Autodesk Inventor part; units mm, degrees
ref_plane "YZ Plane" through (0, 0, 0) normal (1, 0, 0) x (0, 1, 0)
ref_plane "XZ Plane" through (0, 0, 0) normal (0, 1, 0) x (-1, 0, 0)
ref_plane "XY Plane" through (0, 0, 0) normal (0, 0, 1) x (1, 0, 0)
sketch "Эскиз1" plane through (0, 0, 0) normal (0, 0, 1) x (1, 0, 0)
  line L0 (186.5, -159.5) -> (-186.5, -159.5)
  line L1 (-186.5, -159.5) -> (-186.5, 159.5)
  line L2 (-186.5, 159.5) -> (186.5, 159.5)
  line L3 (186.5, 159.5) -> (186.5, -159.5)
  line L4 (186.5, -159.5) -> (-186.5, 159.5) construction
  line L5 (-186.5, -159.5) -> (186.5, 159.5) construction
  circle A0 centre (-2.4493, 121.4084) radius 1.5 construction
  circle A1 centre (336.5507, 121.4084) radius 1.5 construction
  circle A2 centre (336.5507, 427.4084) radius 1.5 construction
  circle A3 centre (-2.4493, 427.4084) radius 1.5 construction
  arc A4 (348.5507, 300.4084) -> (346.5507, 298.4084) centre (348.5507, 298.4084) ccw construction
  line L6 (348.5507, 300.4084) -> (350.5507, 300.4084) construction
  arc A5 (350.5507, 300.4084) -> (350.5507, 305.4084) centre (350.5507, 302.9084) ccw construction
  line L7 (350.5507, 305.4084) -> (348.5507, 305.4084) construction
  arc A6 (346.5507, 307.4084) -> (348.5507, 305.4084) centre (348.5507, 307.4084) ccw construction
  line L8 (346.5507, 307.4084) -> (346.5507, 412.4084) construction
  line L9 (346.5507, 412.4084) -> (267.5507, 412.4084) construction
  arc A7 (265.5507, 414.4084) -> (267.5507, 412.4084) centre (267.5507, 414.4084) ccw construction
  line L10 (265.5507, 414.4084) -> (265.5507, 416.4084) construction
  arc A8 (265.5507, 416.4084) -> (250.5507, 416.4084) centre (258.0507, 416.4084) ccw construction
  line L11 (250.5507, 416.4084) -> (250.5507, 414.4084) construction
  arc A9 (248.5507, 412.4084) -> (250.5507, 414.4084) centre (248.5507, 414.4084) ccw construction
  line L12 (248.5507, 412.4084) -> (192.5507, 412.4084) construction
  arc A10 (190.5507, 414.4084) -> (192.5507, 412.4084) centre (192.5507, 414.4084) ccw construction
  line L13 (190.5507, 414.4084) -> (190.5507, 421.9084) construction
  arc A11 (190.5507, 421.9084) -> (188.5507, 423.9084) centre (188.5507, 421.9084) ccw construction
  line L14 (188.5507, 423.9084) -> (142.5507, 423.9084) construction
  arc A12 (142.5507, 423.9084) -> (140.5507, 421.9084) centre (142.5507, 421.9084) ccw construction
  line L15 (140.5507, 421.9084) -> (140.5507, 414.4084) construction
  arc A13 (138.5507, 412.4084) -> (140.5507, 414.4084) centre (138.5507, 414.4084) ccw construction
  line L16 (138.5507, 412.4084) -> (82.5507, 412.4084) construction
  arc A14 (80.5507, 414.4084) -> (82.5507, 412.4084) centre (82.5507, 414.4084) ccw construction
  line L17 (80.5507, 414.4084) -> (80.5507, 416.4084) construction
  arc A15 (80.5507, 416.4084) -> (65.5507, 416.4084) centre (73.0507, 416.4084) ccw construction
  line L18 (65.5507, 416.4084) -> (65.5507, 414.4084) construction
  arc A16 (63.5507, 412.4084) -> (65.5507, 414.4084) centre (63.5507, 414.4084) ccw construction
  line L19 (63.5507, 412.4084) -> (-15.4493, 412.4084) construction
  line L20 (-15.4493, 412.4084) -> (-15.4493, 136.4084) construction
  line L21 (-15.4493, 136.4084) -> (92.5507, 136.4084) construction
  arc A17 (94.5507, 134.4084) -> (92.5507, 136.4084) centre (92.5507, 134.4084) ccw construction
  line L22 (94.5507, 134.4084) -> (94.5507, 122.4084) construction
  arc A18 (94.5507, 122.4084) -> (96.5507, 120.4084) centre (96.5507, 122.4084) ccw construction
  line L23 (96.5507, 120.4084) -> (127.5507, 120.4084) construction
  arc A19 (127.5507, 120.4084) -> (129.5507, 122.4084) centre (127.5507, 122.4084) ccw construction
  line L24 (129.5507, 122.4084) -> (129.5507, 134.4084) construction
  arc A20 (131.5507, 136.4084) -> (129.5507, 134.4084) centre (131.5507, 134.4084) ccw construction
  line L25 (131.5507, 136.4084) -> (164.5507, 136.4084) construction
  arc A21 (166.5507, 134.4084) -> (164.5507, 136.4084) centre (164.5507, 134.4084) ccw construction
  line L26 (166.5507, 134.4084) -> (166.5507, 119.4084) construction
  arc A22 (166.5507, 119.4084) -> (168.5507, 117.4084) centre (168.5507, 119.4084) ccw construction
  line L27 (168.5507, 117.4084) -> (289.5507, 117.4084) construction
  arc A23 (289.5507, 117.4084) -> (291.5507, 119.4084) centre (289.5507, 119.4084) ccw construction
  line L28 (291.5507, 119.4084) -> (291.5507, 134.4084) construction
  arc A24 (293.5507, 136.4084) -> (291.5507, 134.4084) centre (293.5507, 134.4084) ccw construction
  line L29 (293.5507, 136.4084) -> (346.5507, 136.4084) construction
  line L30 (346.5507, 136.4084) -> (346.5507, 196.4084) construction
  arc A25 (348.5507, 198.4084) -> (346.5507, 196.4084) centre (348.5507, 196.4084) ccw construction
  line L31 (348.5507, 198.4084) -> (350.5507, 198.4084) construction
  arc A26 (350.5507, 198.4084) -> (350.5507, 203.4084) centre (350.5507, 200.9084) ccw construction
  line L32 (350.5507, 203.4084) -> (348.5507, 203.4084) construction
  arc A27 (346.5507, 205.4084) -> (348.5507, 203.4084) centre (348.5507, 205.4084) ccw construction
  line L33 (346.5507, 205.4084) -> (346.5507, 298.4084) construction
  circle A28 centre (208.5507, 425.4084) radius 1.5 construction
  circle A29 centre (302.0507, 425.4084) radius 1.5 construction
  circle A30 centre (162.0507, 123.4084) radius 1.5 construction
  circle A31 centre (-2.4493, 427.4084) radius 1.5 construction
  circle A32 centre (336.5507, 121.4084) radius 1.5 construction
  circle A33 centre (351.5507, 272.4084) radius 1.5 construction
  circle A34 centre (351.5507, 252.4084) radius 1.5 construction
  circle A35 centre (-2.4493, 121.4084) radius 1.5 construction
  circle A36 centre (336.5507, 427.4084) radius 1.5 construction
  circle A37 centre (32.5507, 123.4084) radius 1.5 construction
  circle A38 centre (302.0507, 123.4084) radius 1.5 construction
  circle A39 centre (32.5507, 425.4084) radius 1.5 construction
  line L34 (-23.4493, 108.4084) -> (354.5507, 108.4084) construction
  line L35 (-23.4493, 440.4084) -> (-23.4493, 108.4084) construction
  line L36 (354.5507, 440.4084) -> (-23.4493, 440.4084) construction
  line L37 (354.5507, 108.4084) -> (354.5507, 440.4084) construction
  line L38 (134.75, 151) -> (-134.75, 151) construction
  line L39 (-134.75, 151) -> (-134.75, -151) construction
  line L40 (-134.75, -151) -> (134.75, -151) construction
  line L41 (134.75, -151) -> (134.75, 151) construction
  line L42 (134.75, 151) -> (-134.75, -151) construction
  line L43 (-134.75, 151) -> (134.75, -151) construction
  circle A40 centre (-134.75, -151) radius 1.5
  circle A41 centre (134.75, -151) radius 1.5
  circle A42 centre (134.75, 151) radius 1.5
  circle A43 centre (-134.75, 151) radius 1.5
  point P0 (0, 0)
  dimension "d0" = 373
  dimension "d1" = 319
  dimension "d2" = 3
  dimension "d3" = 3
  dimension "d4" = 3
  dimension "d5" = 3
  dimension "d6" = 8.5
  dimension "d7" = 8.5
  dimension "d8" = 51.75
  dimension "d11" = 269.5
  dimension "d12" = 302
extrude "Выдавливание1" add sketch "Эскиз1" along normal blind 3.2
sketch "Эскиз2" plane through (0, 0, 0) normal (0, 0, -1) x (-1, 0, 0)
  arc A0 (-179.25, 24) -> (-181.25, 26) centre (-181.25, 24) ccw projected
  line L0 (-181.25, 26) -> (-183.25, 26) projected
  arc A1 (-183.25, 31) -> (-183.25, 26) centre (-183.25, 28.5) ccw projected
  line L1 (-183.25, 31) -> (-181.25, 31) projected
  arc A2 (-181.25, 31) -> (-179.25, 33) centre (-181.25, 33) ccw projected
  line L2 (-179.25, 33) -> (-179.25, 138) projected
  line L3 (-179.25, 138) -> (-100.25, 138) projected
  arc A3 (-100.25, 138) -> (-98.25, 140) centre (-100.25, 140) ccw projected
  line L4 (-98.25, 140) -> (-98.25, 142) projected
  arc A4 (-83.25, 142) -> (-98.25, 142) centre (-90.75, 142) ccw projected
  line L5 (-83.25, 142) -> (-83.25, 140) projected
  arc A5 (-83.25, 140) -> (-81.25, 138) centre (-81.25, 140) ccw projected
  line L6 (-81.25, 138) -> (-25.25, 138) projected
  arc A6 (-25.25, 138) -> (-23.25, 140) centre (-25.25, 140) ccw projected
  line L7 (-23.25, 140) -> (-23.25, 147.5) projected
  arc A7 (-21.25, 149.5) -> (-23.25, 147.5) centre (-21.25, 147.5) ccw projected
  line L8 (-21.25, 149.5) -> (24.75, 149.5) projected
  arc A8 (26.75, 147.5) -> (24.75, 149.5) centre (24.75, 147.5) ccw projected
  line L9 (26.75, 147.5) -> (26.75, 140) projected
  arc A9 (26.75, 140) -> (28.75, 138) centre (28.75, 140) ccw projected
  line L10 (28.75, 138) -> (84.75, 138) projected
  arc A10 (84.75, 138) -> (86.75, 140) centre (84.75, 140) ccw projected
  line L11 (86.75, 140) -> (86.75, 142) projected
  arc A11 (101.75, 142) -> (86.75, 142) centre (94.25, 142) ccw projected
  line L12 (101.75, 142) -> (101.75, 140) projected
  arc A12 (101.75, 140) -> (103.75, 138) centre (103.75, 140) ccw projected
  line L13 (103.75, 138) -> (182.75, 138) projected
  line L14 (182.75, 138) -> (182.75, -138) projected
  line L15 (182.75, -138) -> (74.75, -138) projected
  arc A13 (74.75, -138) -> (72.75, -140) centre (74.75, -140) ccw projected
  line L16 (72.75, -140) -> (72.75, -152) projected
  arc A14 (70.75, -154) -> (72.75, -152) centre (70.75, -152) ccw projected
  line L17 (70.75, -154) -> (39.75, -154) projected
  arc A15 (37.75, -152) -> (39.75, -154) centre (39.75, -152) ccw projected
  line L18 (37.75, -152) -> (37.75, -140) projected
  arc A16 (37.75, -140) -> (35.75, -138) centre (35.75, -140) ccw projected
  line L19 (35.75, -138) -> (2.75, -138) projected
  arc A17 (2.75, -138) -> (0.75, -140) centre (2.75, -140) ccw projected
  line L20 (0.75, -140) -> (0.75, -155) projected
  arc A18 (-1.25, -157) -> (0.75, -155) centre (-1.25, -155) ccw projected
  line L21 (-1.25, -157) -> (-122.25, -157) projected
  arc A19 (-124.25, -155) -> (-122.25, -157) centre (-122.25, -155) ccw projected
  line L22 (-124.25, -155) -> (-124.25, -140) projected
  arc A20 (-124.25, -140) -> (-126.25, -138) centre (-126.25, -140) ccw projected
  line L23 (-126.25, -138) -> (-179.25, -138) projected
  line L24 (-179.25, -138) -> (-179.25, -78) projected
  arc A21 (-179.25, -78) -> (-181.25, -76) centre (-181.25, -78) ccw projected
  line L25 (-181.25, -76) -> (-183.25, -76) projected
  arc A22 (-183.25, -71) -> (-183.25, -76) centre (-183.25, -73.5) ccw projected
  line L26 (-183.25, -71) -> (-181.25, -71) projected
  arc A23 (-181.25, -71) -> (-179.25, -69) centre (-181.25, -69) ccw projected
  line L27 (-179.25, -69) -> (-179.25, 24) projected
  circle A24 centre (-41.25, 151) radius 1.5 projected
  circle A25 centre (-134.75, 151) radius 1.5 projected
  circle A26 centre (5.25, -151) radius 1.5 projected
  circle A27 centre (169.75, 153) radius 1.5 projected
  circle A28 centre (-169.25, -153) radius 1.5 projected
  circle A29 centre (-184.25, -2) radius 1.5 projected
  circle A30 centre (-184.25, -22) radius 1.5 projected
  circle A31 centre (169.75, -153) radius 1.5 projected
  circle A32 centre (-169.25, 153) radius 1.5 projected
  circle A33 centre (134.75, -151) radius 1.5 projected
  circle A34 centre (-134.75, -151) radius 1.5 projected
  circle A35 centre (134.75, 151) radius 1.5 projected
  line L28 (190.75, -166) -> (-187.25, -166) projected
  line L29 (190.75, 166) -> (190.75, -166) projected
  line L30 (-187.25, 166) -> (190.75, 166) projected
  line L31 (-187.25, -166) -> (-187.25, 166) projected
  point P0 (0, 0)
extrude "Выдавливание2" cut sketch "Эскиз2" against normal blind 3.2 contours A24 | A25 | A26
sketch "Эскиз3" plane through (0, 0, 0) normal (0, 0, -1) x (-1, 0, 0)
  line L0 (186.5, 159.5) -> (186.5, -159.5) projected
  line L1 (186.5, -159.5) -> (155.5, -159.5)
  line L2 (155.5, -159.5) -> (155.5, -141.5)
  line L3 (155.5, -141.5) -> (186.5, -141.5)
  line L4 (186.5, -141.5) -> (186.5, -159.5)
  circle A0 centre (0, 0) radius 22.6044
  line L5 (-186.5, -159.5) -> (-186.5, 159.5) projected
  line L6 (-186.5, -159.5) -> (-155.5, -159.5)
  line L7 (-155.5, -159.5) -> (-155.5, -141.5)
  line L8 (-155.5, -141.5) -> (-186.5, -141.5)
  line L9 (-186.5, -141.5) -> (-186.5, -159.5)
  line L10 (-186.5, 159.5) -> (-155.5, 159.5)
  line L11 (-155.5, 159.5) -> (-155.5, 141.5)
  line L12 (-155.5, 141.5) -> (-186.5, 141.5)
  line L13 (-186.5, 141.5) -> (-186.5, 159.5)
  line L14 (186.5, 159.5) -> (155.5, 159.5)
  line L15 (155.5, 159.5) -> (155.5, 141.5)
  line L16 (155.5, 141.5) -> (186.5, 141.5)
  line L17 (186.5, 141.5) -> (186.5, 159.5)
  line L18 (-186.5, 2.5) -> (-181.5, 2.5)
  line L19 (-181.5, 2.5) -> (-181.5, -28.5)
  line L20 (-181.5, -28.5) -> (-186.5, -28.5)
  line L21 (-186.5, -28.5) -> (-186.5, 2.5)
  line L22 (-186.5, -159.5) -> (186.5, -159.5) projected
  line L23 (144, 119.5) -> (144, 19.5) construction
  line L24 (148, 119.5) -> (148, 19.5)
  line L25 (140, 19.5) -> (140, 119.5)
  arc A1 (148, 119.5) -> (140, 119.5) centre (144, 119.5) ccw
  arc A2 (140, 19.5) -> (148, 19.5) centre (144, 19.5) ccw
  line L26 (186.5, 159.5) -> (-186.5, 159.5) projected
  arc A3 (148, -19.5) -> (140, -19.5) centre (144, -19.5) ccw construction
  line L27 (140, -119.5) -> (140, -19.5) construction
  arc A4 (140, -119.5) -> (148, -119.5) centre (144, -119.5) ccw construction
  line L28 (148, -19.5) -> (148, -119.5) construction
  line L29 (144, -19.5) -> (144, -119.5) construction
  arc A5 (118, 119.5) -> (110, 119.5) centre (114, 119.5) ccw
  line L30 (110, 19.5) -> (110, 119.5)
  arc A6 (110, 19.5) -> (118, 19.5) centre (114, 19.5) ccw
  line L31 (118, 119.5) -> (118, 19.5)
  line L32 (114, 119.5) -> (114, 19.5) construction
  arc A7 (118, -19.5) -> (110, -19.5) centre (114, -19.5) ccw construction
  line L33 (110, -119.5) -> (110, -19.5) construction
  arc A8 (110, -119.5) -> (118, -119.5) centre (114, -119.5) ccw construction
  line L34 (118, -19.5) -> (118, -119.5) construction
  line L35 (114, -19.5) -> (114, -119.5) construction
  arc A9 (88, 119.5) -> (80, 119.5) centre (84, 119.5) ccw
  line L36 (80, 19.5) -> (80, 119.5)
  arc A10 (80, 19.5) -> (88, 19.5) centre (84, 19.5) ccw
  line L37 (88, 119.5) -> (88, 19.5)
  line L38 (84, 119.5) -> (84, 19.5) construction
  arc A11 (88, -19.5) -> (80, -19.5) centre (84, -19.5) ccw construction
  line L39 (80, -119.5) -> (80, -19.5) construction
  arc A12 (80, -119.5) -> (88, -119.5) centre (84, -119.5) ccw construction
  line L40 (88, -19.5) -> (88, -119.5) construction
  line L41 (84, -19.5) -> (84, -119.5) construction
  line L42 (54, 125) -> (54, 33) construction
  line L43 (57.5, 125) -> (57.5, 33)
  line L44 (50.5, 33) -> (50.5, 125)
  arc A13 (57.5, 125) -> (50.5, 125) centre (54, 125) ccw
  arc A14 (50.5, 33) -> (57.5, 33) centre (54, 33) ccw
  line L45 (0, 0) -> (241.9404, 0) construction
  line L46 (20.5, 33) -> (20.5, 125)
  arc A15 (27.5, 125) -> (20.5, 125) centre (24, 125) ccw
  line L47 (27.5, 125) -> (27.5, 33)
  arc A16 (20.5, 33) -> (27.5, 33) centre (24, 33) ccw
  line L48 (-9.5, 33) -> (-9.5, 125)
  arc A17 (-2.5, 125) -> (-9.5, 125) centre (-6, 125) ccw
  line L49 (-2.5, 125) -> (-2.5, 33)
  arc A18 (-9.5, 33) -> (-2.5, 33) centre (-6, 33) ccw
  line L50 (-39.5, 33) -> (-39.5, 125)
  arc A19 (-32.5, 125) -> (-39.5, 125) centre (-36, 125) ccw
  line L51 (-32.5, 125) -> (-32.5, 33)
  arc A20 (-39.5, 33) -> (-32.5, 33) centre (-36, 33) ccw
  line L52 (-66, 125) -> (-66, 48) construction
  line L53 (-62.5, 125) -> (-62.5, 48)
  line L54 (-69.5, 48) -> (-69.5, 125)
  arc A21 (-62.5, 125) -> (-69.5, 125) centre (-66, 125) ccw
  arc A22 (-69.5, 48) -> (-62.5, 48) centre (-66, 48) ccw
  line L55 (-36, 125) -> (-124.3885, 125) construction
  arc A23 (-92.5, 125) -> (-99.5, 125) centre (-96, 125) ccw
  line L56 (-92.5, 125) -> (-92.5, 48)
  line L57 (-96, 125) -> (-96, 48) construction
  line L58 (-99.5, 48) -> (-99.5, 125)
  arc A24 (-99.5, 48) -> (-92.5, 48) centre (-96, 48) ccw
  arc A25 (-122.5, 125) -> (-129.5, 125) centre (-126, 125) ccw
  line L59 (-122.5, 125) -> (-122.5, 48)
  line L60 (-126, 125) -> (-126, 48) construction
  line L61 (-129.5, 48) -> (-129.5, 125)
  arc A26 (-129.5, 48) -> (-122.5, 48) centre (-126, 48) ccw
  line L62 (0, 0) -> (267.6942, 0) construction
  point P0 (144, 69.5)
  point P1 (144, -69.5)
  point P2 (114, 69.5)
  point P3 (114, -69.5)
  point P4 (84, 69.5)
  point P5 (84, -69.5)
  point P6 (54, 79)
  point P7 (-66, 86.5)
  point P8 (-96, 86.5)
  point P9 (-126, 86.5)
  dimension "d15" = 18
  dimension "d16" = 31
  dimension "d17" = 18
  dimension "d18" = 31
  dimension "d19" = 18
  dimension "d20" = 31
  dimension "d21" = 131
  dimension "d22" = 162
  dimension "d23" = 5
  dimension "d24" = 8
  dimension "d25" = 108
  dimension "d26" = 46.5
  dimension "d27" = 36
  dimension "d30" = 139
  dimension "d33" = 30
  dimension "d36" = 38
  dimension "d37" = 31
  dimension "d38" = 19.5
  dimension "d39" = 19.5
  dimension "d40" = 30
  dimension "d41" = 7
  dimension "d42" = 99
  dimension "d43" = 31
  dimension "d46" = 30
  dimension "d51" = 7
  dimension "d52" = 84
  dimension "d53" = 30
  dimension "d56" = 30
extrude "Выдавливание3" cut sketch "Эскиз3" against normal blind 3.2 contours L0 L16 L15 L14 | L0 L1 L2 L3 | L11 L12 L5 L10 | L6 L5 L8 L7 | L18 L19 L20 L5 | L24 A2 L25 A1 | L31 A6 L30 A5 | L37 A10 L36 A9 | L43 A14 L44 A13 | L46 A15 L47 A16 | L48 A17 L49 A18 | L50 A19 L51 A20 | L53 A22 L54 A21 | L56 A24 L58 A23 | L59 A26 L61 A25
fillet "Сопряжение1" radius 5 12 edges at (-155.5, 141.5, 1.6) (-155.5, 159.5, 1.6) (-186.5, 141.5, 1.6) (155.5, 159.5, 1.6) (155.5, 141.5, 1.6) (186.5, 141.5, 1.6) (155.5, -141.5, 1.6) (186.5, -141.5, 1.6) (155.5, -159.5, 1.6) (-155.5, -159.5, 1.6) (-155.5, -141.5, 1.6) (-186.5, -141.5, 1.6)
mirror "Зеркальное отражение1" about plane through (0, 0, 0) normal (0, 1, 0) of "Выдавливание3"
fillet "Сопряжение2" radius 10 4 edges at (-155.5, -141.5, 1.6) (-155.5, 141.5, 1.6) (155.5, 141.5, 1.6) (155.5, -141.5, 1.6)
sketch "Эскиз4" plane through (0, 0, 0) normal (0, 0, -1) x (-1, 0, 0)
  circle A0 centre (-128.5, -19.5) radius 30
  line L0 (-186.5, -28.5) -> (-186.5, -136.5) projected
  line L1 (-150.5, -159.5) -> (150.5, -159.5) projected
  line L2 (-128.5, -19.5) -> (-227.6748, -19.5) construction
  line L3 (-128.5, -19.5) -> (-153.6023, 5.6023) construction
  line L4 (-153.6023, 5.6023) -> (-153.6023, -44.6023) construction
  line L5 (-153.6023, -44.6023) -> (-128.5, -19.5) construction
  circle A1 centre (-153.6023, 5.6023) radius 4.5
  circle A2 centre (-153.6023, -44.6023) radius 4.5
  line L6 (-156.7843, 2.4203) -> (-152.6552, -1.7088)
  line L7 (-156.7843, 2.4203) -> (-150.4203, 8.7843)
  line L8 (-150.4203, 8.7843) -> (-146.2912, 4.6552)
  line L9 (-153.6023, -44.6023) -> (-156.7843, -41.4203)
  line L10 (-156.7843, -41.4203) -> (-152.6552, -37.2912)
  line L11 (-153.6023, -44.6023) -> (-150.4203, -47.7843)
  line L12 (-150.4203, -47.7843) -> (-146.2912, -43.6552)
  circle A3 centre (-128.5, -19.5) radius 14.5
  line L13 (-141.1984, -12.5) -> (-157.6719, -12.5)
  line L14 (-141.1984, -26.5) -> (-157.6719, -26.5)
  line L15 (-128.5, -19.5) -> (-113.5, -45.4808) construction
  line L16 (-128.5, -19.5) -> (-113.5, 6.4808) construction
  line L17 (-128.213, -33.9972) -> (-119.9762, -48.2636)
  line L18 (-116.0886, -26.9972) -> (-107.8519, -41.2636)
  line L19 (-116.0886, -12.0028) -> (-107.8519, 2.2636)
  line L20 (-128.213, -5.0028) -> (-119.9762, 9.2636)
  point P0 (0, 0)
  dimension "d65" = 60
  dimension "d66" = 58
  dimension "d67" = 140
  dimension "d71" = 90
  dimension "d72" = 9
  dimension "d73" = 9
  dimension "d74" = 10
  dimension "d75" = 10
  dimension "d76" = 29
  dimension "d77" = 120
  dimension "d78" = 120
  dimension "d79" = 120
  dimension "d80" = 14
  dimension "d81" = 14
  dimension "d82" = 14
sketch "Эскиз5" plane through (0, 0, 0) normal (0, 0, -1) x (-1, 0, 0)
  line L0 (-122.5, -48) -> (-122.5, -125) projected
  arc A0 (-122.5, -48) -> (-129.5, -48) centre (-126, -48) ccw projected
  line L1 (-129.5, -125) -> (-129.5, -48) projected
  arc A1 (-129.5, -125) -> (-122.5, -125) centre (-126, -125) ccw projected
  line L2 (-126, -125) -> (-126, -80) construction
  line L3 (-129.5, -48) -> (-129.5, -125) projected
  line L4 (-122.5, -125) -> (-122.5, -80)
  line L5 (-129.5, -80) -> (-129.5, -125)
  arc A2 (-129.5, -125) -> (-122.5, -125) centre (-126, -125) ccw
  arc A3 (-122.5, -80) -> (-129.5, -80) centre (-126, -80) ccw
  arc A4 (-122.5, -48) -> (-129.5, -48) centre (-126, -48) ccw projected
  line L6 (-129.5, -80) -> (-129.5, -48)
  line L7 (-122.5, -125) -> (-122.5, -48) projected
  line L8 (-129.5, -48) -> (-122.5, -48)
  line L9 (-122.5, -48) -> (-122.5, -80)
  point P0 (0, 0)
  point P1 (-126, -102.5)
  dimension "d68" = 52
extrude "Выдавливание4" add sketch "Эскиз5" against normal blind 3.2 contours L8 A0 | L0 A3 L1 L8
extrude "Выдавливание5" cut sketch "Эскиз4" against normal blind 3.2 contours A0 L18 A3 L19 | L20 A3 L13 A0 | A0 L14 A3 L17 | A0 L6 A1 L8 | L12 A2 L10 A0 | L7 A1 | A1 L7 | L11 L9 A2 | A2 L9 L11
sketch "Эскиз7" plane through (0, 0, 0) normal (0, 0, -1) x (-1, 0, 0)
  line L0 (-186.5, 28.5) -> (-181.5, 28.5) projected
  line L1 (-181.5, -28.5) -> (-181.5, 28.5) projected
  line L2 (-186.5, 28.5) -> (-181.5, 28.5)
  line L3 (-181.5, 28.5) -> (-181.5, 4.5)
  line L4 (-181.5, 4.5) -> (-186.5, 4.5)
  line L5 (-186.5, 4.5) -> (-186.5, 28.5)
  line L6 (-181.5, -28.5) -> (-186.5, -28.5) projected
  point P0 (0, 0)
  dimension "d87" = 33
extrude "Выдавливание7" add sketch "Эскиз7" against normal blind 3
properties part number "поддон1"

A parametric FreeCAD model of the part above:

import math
import FreeCAD as App
import Part
import Sketcher

V = App.Vector
Q = App.Units.Quantity


def edges_at(feature, points):
    """Names of the edges that pass closest to the given points."""
    edges = feature.Shape.Edges
    near = lambda p: min(range(len(edges)), key=lambda i: edges[i].distToShape(Part.Vertex(*p))[0])
    return sorted({f"Edge{near(p) + 1}" for p in points})

doc = App.newDocument("Part")
body = doc.addObject("PartDesign::Body", "Body")

# Sketch on XY plane
sketch1 = body.newObject("Sketcher::SketchObject", "Sketch")
sketch1.AttachmentSupport = (doc.getObject("XY_Plane"), [""])
sketch1.MapMode = "FlatFace"
sketch1.addGeometry([
    Part.LineSegment(V(-186.5, -159.5, 0), V(186.5, -159.5, 0)),  # 0
    Part.LineSegment(V(186.5, -159.5, 0), V(186.5, 159.5, 0)),  # 1
    Part.LineSegment(V(186.5, 159.5, 0), V(-186.5, 159.5, 0)),  # 2
    Part.LineSegment(V(-186.5, 159.5, 0), V(-186.5, -159.5, 0)),  # 3
    Part.Circle(V(-134.75, -151, 0), V(0, 0, 1), 1.5),  # 4
    Part.Circle(V(134.75, -151, 0), V(0, 0, 1), 1.5),  # 5
    Part.Circle(V(-134.75, 151, 0), V(0, 0, 1), 1.5),  # 6
    Part.Circle(V(134.75, 151, 0), V(0, 0, 1), 1.5),  # 7
], False)
sketch1.addConstraint([
    Sketcher.Constraint("Coincident", 0, 2, 1, 1),
    Sketcher.Constraint("Coincident", 1, 2, 2, 1),
    Sketcher.Constraint("Coincident", 2, 2, 3, 1),
    Sketcher.Constraint("Coincident", 3, 2, 0, 1),
    Sketcher.Constraint("Horizontal", 0),
    Sketcher.Constraint("Vertical", 1),
    Sketcher.Constraint("Horizontal", 2),
    Sketcher.Constraint("Vertical", 3),
    Sketcher.Constraint("Equal", 4, 5),
    Sketcher.Constraint("Equal", 5, 6),
    Sketcher.Constraint("Equal", 6, 7),
    Sketcher.Constraint("Symmetric", 5, 3, 6, 3, -1, 1),
    Sketcher.Constraint("Symmetric", 4, 3, 7, 3, -1, 1),
    Sketcher.Constraint("Symmetric", 0, 2, 2, 2, -1, 1),
    Sketcher.Constraint("Symmetric", 4, 3, 5, 3, -2),
    Sketcher.Constraint("Diameter", 4, Q("3 mm")),
    Sketcher.Constraint("DistanceX", 0, 1, 0, 2, Q("373 mm")),
    Sketcher.Constraint("DistanceY", 1, 1, 1, 2, Q("319 mm")),
    Sketcher.Constraint("DistanceY", 4, 3, 6, 3, Q("302 mm")),
    Sketcher.Constraint("DistanceX", 4, 3, 5, 3, Q("269.5 mm")),
])
pad1 = body.newObject("PartDesign::Pad", "Pad")
pad1.Profile = sketch1
pad1.Length = 3.2

# Sketch on XY plane
sketch2 = body.newObject("Sketcher::SketchObject", "Sketch001")
sketch2.AttachmentSupport = (doc.getObject("XY_Plane"), [""])
sketch2.MapMode = "FlatFace"
sketch2.addGeometry([
    Part.Circle(V(41.25, 151, 0), V(0, 0, 1), 1.5),
    Part.Circle(V(134.75, 151, 0), V(0, 0, 1), 1.5),
    Part.Circle(V(-5.25, -151, 0), V(0, 0, 1), 1.5),
], False)
sketch2.addConstraint([
    Sketcher.Constraint("Equal", 0, 1),
    Sketcher.Constraint("Equal", 1, 2),
    Sketcher.Constraint("Horizontal", 0, 3, 1, 3),
    Sketcher.Constraint("Diameter", 0, Q("3 mm")),
    Sketcher.Constraint("DistanceY", -1, 1, 0, 3, Q("151 mm")),
    Sketcher.Constraint("DistanceY", 2, 3, -1, 1, Q("151 mm")),
    Sketcher.Constraint("DistanceX", 2, 3, 1, 3, Q("140 mm")),
    Sketcher.Constraint("DistanceX", 0, 3, 1, 3, Q("93.5 mm")),
    Sketcher.Constraint("DistanceX", -1, 1, 0, 3, Q("41.25 mm")),
])
pocket1 = body.newObject("PartDesign::Pocket", "Pocket")
pocket1.Profile = sketch2
pocket1.Length = 3.2
pocket1.Reversed = True

# Sketch on XY plane
sketch3 = body.newObject("Sketcher::SketchObject", "Sketch002")
sketch3.AttachmentSupport = (doc.getObject("XY_Plane"), [""])
sketch3.MapMode = "FlatFace"
sketch3.addGeometry([
    Part.LineSegment(V(-186.5, 141.5, 0), V(-186.5, 159.5, 0)),  # 0
    Part.LineSegment(V(-186.5, 159.5, 0), V(-155.5, 159.5, 0)),  # 1
    Part.LineSegment(V(-155.5, 159.5, 0), V(-155.5, 141.5, 0)),  # 2
    Part.LineSegment(V(-155.5, 141.5, 0), V(-186.5, 141.5, 0)),  # 3
    Part.LineSegment(V(-186.5, -159.5, 0), V(-186.5, -141.5, 0)),  # 4
    Part.LineSegment(V(-186.5, -141.5, 0), V(-155.5, -141.5, 0)),  # 5
    Part.LineSegment(V(-155.5, -141.5, 0), V(-155.5, -159.5, 0)),  # 6
    Part.LineSegment(V(-155.5, -159.5, 0), V(-186.5, -159.5, 0)),  # 7
    Part.LineSegment(V(155.5, 141.5, 0), V(155.5, 159.5, 0)),  # 8
    Part.LineSegment(V(155.5, 159.5, 0), V(186.5, 159.5, 0)),  # 9
    Part.LineSegment(V(186.5, 159.5, 0), V(186.5, 141.5, 0)),  # 10
    Part.LineSegment(V(186.5, 141.5, 0), V(155.5, 141.5, 0)),  # 11
    Part.LineSegment(V(186.5, -159.5, 0), V(155.5, -159.5, 0)),  # 12
    Part.LineSegment(V(155.5, -159.5, 0), V(155.5, -141.5, 0)),  # 13
    Part.LineSegment(V(155.5, -141.5, 0), V(186.5, -141.5, 0)),  # 14
    Part.LineSegment(V(186.5, -141.5, 0), V(186.5, -159.5, 0)),  # 15
    Part.LineSegment(V(181.5, 2.5, 0), V(186.5, 2.5, 0)),  # 16
    Part.LineSegment(V(186.5, 2.5, 0), V(186.5, -28.5, 0)),  # 17
    Part.LineSegment(V(186.5, -28.5, 0), V(181.5, -28.5, 0)),  # 18
    Part.LineSegment(V(181.5, -28.5, 0), V(181.5, 2.5, 0)),  # 19
    Part.LineSegment(V(-148, 19.5, 0), V(-148, 119.5, 0)),  # 20
    Part.ArcOfCircle(Part.Circle(V(-144, 119.5, 0), V(0, 0, 1), 4), math.radians(0), math.radians(180)),  # 21
    Part.LineSegment(V(-140, 119.5, 0), V(-140, 19.5, 0)),  # 22
    Part.ArcOfCircle(Part.Circle(V(-144, 19.5, 0), V(0, 0, 1), 4), math.radians(180), math.radians(360)),  # 23
    Part.LineSegment(V(-118, 19.5, 0), V(-118, 119.5, 0)),  # 24
    Part.ArcOfCircle(Part.Circle(V(-114, 119.5, 0), V(0, 0, 1), 4), math.radians(0), math.radians(180)),  # 25
    Part.LineSegment(V(-110, 119.5, 0), V(-110, 19.5, 0)),  # 26
    Part.ArcOfCircle(Part.Circle(V(-114, 19.5, 0), V(0, 0, 1), 4), math.radians(180), math.radians(360)),  # 27
    Part.LineSegment(V(-88, 19.5, 0), V(-88, 119.5, 0)),  # 28
    Part.ArcOfCircle(Part.Circle(V(-84, 119.5, 0), V(0, 0, 1), 4), math.radians(0), math.radians(180)),  # 29
    Part.LineSegment(V(-80, 119.5, 0), V(-80, 19.5, 0)),  # 30
    Part.ArcOfCircle(Part.Circle(V(-84, 19.5, 0), V(0, 0, 1), 4), math.radians(180), math.radians(360)),  # 31
    Part.LineSegment(V(-57.5, 33, 0), V(-57.5, 125, 0)),  # 32
    Part.ArcOfCircle(Part.Circle(V(-54, 125, 0), V(0, 0, 1), 3.5), math.radians(0), math.radians(180)),  # 33
    Part.LineSegment(V(-50.5, 125, 0), V(-50.5, 33, 0)),  # 34
    Part.ArcOfCircle(Part.Circle(V(-54, 33, 0), V(0, 0, 1), 3.5), math.radians(180), math.radians(360)),  # 35
    Part.LineSegment(V(-20.5, 125, 0), V(-20.5, 33, 0)),  # 36
    Part.ArcOfCircle(Part.Circle(V(-24, 33, 0), V(0, 0, 1), 3.5), math.radians(180), math.radians(360)),  # 37
    Part.LineSegment(V(-27.5, 33, 0), V(-27.5, 125, 0)),  # 38
    Part.ArcOfCircle(Part.Circle(V(-24, 125, 0), V(0, 0, 1), 3.5), math.radians(0), math.radians(180)),  # 39
    Part.LineSegment(V(9.5, 125, 0), V(9.5, 33, 0)),  # 40
    Part.ArcOfCircle(Part.Circle(V(6, 33, 0), V(0, 0, 1), 3.5), math.radians(180), math.radians(360)),  # 41
    Part.LineSegment(V(2.5, 33, 0), V(2.5, 125, 0)),  # 42
    Part.ArcOfCircle(Part.Circle(V(6, 125, 0), V(0, 0, 1), 3.5), math.radians(0), math.radians(180)),  # 43
    Part.LineSegment(V(39.5, 125, 0), V(39.5, 33, 0)),  # 44
    Part.ArcOfCircle(Part.Circle(V(36, 33, 0), V(0, 0, 1), 3.5), math.radians(180), math.radians(360)),  # 45
    Part.LineSegment(V(32.5, 33, 0), V(32.5, 125, 0)),  # 46
    Part.ArcOfCircle(Part.Circle(V(36, 125, 0), V(0, 0, 1), 3.5), math.radians(0), math.radians(180)),  # 47
    Part.LineSegment(V(62.5, 48, 0), V(62.5, 125, 0)),  # 48
    Part.ArcOfCircle(Part.Circle(V(66, 125, 0), V(0, 0, 1), 3.5), math.radians(0), math.radians(180)),  # 49
    Part.LineSegment(V(69.5, 125, 0), V(69.5, 48, 0)),  # 50
    Part.ArcOfCircle(Part.Circle(V(66, 48, 0), V(0, 0, 1), 3.5), math.radians(180), math.radians(360)),  # 51
    Part.LineSegment(V(92.5, 48, 0), V(92.5, 125, 0)),  # 52
    Part.ArcOfCircle(Part.Circle(V(96, 125, 0), V(0, 0, 1), 3.5), math.radians(0), math.radians(180)),  # 53
    Part.LineSegment(V(99.5, 125, 0), V(99.5, 48, 0)),  # 54
    Part.ArcOfCircle(Part.Circle(V(96, 48, 0), V(0, 0, 1), 3.5), math.radians(180), math.radians(360)),  # 55
    Part.LineSegment(V(122.5, 48, 0), V(122.5, 125, 0)),  # 56
    Part.ArcOfCircle(Part.Circle(V(126, 125, 0), V(0, 0, 1), 3.5), math.radians(0), math.radians(180)),  # 57
    Part.LineSegment(V(129.5, 125, 0), V(129.5, 48, 0)),  # 58
    Part.ArcOfCircle(Part.Circle(V(126, 48, 0), V(0, 0, 1), 3.5), math.radians(180), math.radians(360)),  # 59
], False)
sketch3.addConstraint([
    Sketcher.Constraint("Coincident", 0, 2, 1, 1),
    Sketcher.Constraint("Coincident", 1, 2, 2, 1),
    Sketcher.Constraint("Coincident", 2, 2, 3, 1),
    Sketcher.Constraint("Coincident", 3, 2, 0, 1),
    Sketcher.Constraint("Coincident", 4, 2, 5, 1),
    Sketcher.Constraint("Coincident", 5, 2, 6, 1),
    Sketcher.Constraint("Coincident", 6, 2, 7, 1),
    Sketcher.Constraint("Coincident", 7, 2, 4, 1),
    Sketcher.Constraint("Coincident", 8, 2, 9, 1),
    Sketcher.Constraint("Coincident", 9, 2, 10, 1),
    Sketcher.Constraint("Coincident", 10, 2, 11, 1),
    Sketcher.Constraint("Coincident", 11, 2, 8, 1),
    Sketcher.Constraint("Coincident", 12, 2, 13, 1),
    Sketcher.Constraint("Coincident", 13, 2, 14, 1),
    Sketcher.Constraint("Coincident", 14, 2, 15, 1),
    Sketcher.Constraint("Coincident", 15, 2, 12, 1),
    Sketcher.Constraint("Coincident", 16, 2, 17, 1),
    Sketcher.Constraint("Coincident", 17, 2, 18, 1),
    Sketcher.Constraint("Coincident", 18, 2, 19, 1),
    Sketcher.Constraint("Coincident", 19, 2, 16, 1),
    Sketcher.Constraint("Tangent", 20, 2, 21, 2),
    Sketcher.Constraint("Tangent", 21, 1, 22, 1),
    Sketcher.Constraint("Tangent", 22, 2, 23, 2),
    Sketcher.Constraint("Tangent", 23, 1, 20, 1),
    Sketcher.Constraint("Tangent", 24, 2, 25, 2),
    Sketcher.Constraint("Tangent", 25, 1, 26, 1),
    Sketcher.Constraint("Tangent", 26, 2, 27, 2),
    Sketcher.Constraint("Tangent", 27, 1, 24, 1),
    Sketcher.Constraint("Tangent", 28, 2, 29, 2),
    Sketcher.Constraint("Tangent", 29, 1, 30, 1),
    Sketcher.Constraint("Tangent", 30, 2, 31, 2),
    Sketcher.Constraint("Tangent", 31, 1, 28, 1),
    Sketcher.Constraint("Tangent", 32, 2, 33, 2),
    Sketcher.Constraint("Tangent", 33, 1, 34, 1),
    Sketcher.Constraint("Tangent", 34, 2, 35, 2),
    Sketcher.Constraint("Tangent", 35, 1, 32, 1),
    Sketcher.Constraint("Tangent", 36, 2, 37, 2),
    Sketcher.Constraint("Tangent", 37, 1, 38, 1),
    Sketcher.Constraint("Tangent", 38, 2, 39, 2),
    Sketcher.Constraint("Tangent", 39, 1, 36, 1),
    Sketcher.Constraint("Tangent", 40, 2, 41, 2),
    Sketcher.Constraint("Tangent", 41, 1, 42, 1),
    Sketcher.Constraint("Tangent", 42, 2, 43, 2),
    Sketcher.Constraint("Tangent", 43, 1, 40, 1),
    Sketcher.Constraint("Tangent", 44, 2, 45, 2),
    Sketcher.Constraint("Tangent", 45, 1, 46, 1),
    Sketcher.Constraint("Tangent", 46, 2, 47, 2),
    Sketcher.Constraint("Tangent", 47, 1, 44, 1),
    Sketcher.Constraint("Tangent", 48, 2, 49, 2),
    Sketcher.Constraint("Tangent", 49, 1, 50, 1),
    Sketcher.Constraint("Tangent", 50, 2, 51, 2),
    Sketcher.Constraint("Tangent", 51, 1, 48, 1),
    Sketcher.Constraint("Tangent", 52, 2, 53, 2),
    Sketcher.Constraint("Tangent", 53, 1, 54, 1),
    Sketcher.Constraint("Tangent", 54, 2, 55, 2),
    Sketcher.Constraint("Tangent", 55, 1, 52, 1),
    Sketcher.Constraint("Tangent", 56, 2, 57, 2),
    Sketcher.Constraint("Tangent", 57, 1, 58, 1),
    Sketcher.Constraint("Tangent", 58, 2, 59, 2),
    Sketcher.Constraint("Tangent", 59, 1, 56, 1),
    Sketcher.Constraint("Vertical", 0),
    Sketcher.Constraint("Horizontal", 1),
    Sketcher.Constraint("Vertical", 2),
    Sketcher.Constraint("Horizontal", 3),
    Sketcher.Constraint("Vertical", 4),
    Sketcher.Constraint("Horizontal", 5),
    Sketcher.Constraint("Vertical", 6),
    Sketcher.Constraint("Horizontal", 7),
    Sketcher.Constraint("Vertical", 8),
    Sketcher.Constraint("Horizontal", 9),
    Sketcher.Constraint("Vertical", 10),
    Sketcher.Constraint("Horizontal", 11),
    Sketcher.Constraint("Horizontal", 12),
    Sketcher.Constraint("Vertical", 13),
    Sketcher.Constraint("Horizontal", 14),
    Sketcher.Constraint("Vertical", 15),
    Sketcher.Constraint("Horizontal", 16),
    Sketcher.Constraint("Vertical", 17),
    Sketcher.Constraint("Horizontal", 18),
    Sketcher.Constraint("Vertical", 19),
    Sketcher.Constraint("Vertical", 20),
    Sketcher.Constraint("Vertical", 22),
    Sketcher.Constraint("Vertical", 24),
    Sketcher.Constraint("Vertical", 26),
    Sketcher.Constraint("Vertical", 28),
    Sketcher.Constraint("Vertical", 30),
    Sketcher.Constraint("Vertical", 32),
    Sketcher.Constraint("Vertical", 34),
    Sketcher.Constraint("Vertical", 36),
    Sketcher.Constraint("Vertical", 38),
    Sketcher.Constraint("Vertical", 40),
    Sketcher.Constraint("Vertical", 42),
    Sketcher.Constraint("Vertical", 44),
    Sketcher.Constraint("Vertical", 46),
    Sketcher.Constraint("Vertical", 48),
    Sketcher.Constraint("Vertical", 50),
    Sketcher.Constraint("Vertical", 52),
    Sketcher.Constraint("Vertical", 54),
    Sketcher.Constraint("Vertical", 56),
    Sketcher.Constraint("Vertical", 58),
    Sketcher.Constraint("Equal", 23, 25),
    Sketcher.Constraint("Equal", 27, 29),
    Sketcher.Constraint("Equal", 35, 37),
    Sketcher.Constraint("Equal", 39, 41),
    Sketcher.Constraint("Equal", 43, 45),
    Sketcher.Constraint("Equal", 47, 49),
    Sketcher.Constraint("Equal", 51, 53),
    Sketcher.Constraint("Equal", 55, 57),
    Sketcher.Constraint("Symmetric", 6, 2, 8, 2, -1, 1),
    Sketcher.Constraint("Symmetric", 4, 2, 10, 2, -1, 1),
    Sketcher.Constraint("Symmetric", 1, 2, 12, 2, -1, 1),
    Sketcher.Constraint("Symmetric", 3, 2, 14, 2, -1, 1),
    Sketcher.Constraint("Symmetric", 1, 2, 8, 2, -2),
    Sketcher.Constraint("Symmetric", 3, 2, 10, 2, -2),
    Sketcher.Constraint("Horizontal", 21, 3, 25, 3),
    Sketcher.Constraint("Horizontal", 23, 3, 27, 3),
    Sketcher.Constraint("Horizontal", 25, 3, 29, 3),
    Sketcher.Constraint("Horizontal", 27, 3, 31, 3),
    Sketcher.Constraint("Horizontal", 35, 3, 37, 3),
    Sketcher.Constraint("Horizontal", 33, 3, 39, 3),
    Sketcher.Constraint("Horizontal", 37, 3, 41, 3),
    Sketcher.Constraint("Horizontal", 39, 3, 43, 3),
    Sketcher.Constraint("Horizontal", 41, 3, 45, 3),
    Sketcher.Constraint("Horizontal", 43, 3, 47, 3),
    Sketcher.Constraint("Horizontal", 47, 3, 49, 3),
    Sketcher.Constraint("Horizontal", 49, 3, 53, 3),
    Sketcher.Constraint("Horizontal", 51, 3, 55, 3),
    Sketcher.Constraint("Horizontal", 53, 3, 57, 3),
    Sketcher.Constraint("Horizontal", 55, 3, 59, 3),
    Sketcher.Constraint("Vertical", 15, 2, 16, 2),
    Sketcher.Constraint("Equal", 14, 17),
    Sketcher.Constraint("Radius", 21, Q("4 mm")),
    Sketcher.Constraint("Radius", 33, Q("3.5 mm")),
    Sketcher.Constraint("DistanceX", 1, 1, 1, 2, Q("31 mm")),
    Sketcher.Constraint("DistanceX", 16, 1, 16, 2, Q("5 mm")),
    Sketcher.Constraint("DistanceY", 0, 1, 0, 2, Q("18 mm")),
    Sketcher.Constraint("DistanceX", 29, 3, -1, 1, Q("84 mm")),
    Sketcher.Constraint("DistanceX", -1, 1, 45, 3, Q("36 mm")),
    Sketcher.Constraint("DistanceY", -1, 1, 23, 3, Q("19.5 mm")),
    Sketcher.Constraint("DistanceY", 20, 1, 20, 2, Q("100 mm")),
    Sketcher.Constraint("DistanceY", 32, 1, 32, 2, Q("92 mm")),
    Sketcher.Constraint("DistanceY", 48, 1, 48, 2, Q("77 mm")),
    Sketcher.Constraint("DistanceX", 21, 3, -1, 1, Q("144 mm")),
    Sketcher.Constraint("DistanceX", 25, 3, -1, 1, Q("114 mm")),
    Sketcher.Constraint("DistanceX", 33, 3, -1, 1, Q("54 mm")),
    Sketcher.Constraint("DistanceY", -1, 1, 33, 3, Q("125 mm")),
    Sketcher.Constraint("DistanceX", 37, 3, -1, 1, Q("24 mm")),
    Sketcher.Constraint("DistanceX", -1, 1, 41, 3, Q("6 mm")),
    Sketcher.Constraint("DistanceX", -1, 1, 49, 3, Q("66 mm")),
    Sketcher.Constraint("DistanceX", -1, 1, 53, 3, Q("96 mm")),
    Sketcher.Constraint("DistanceX", -1, 1, 57, 3, Q("126 mm")),
    Sketcher.Constraint("DistanceX", 0, 2, -1, 1, Q("186.5 mm")),
    Sketcher.Constraint("DistanceY", -1, 1, 0, 2, Q("159.5 mm")),
    Sketcher.Constraint("DistanceY", -1, 1, 16, 2, Q("2.5 mm")),
])
pocket2 = body.newObject("PartDesign::Pocket", "Pocket001")
pocket2.Profile = sketch3
pocket2.Length = 3.2
pocket2.Reversed = True
doc.recompute()

fillet = body.newObject("PartDesign::Fillet", "Fillet")
fillet.Base = (pocket2, edges_at(pocket2, [
    (-155.5, 141.5, 1.6),
    (-155.5, 159.5, 1.6),
    (-186.5, 141.5, 1.6),
    (155.5, 159.5, 1.6),
    (155.5, 141.5, 1.6),
    (186.5, 141.5, 1.6),
    (155.5, -141.5, 1.6),
    (186.5, -141.5, 1.6),
    (155.5, -159.5, 1.6),
    (-155.5, -159.5, 1.6),
    (-155.5, -141.5, 1.6),
    (-186.5, -141.5, 1.6),
]))
fillet.Radius = 5
doc.recompute()

mirrored = body.newObject("PartDesign::Mirrored", "Mirrored")
mirrored.Originals = [pocket2]
mirrored.MirrorPlane = (doc.getObject("XZ_Plane"), [""])
body.Tip = mirrored
doc.recompute()

fillet2 = body.newObject("PartDesign::Fillet", "Fillet001")
fillet2.Base = (mirrored, edges_at(mirrored, [
    (-155.5, -141.5, 1.6),
    (-155.5, 141.5, 1.6),
    (155.5, 141.5, 1.6),
    (155.5, -141.5, 1.6),
]))
fillet2.Radius = 10

# Sketch on XY plane
sketch4 = body.newObject("Sketcher::SketchObject", "Sketch003")
sketch4.AttachmentSupport = (doc.getObject("XY_Plane"), [""])
sketch4.MapMode = "FlatFace"
sketch4.addGeometry([
    Part.ArcOfCircle(Part.Circle(V(126, -48, 0), V(0, 0, 1), 3.5), math.radians(0), math.radians(180)),
    Part.LineSegment(V(129.5, -48, 0), V(129.5, -80, 0)),
    Part.ArcOfCircle(Part.Circle(V(126, -80, 0), V(0, 0, 1), 3.5), math.radians(0), math.radians(180)),
    Part.LineSegment(V(122.5, -80, 0), V(122.5, -48, 0)),
], False)
sketch4.addConstraint([
    Sketcher.Constraint("Tangent", 0, 1, 1, 1),
    Sketcher.Constraint("Tangent", 1, 2, 2, 1),
    Sketcher.Constraint("Tangent", 2, 2, 3, 1),
    Sketcher.Constraint("Tangent", 3, 2, 0, 2),
    Sketcher.Constraint("Vertical", 1),
    Sketcher.Constraint("Vertical", 3),
    Sketcher.Constraint("Radius", 0, Q("3.5 mm")),
    Sketcher.Constraint("DistanceY", 1, 2, 1, 1, Q("32 mm")),
    Sketcher.Constraint("DistanceX", -1, 1, 0, 3, Q("126 mm")),
    Sketcher.Constraint("DistanceY", 0, 3, -1, 1, Q("48 mm")),
])
pad2 = body.newObject("PartDesign::Pad", "Pad001")
pad2.Profile = sketch4
pad2.Length = 3.2

# Sketch on XY plane
sketch5 = body.newObject("Sketcher::SketchObject", "Sketch004")
sketch5.AttachmentSupport = (doc.getObject("XY_Plane"), [""])
sketch5.MapMode = "FlatFace"
sketch5.addGeometry([
    Part.ArcOfCircle(Part.Circle(V(128.5, -19.5, 0), V(0, 0, 1), 30), math.radians(133.493371), math.radians(226.506629)),  # 0
    Part.LineSegment(V(107.8519, 2.2636, 0), V(116.0886, -12.0028, 0)),  # 1
    Part.ArcOfCircle(Part.Circle(V(128.5, -19.5, 0), V(0, 0, 1), 14.5), math.radians(148.865607), math.radians(211.134393)),  # 2
    Part.LineSegment(V(116.0886, -26.9972, 0), V(107.8519, -41.2636, 0)),  # 3
    Part.LineSegment(V(128.213, -5.0028, 0), V(119.9762, 9.2636, 0)),  # 4
    Part.ArcOfCircle(Part.Circle(V(128.5, -19.5, 0), V(0, 0, 1), 30), math.radians(53.626977), math.radians(106.506654)),  # 5
    Part.LineSegment(V(146.2912, 4.6552, 0), V(150.4203, 8.7843, 0)),  # 6
    Part.ArcOfCircle(Part.Circle(V(153.6023, 5.6023, 0), V(0, 0, 1), 4.5), math.radians(-45), math.radians(135)),  # 7
    Part.LineSegment(V(156.7843, 2.4203, 0), V(152.6552, -1.7088, 0)),  # 8
    Part.ArcOfCircle(Part.Circle(V(128.5, -19.5, 0), V(0, 0, 1), 30), math.radians(13.493401), math.radians(36.373023)),  # 9
    Part.LineSegment(V(157.6719, -12.5, 0), V(141.1984, -12.5, 0)),  # 10
    Part.ArcOfCircle(Part.Circle(V(128.5, -19.5, 0), V(0, 0, 1), 14.5), math.radians(28.865775), math.radians(91.134132)),  # 11
    Part.ArcOfCircle(Part.Circle(V(128.5, -19.5, 0), V(0, 0, 1), 30), math.radians(-106.506654), math.radians(-53.626977)),  # 12
    Part.LineSegment(V(119.9762, -48.2636, 0), V(128.213, -33.9972, 0)),  # 13
    Part.ArcOfCircle(Part.Circle(V(128.5, -19.5, 0), V(0, 0, 1), 14.5), math.radians(-91.134132), math.radians(-28.865775)),  # 14
    Part.LineSegment(V(141.1984, -26.5, 0), V(157.6719, -26.5, 0)),  # 15
    Part.ArcOfCircle(Part.Circle(V(128.5, -19.5, 0), V(0, 0, 1), 30), math.radians(-36.373023), math.radians(-13.493401)),  # 16
    Part.LineSegment(V(152.6552, -37.2912, 0), V(156.7843, -41.4203, 0)),  # 17
    Part.ArcOfCircle(Part.Circle(V(153.6023, -44.6023, 0), V(0, 0, 1), 4.5), math.radians(-135), math.radians(45)),  # 18
    Part.LineSegment(V(150.4203, -47.7843, 0), V(146.2912, -43.6552, 0)),  # 19
], False)
sketch5.addConstraint([
    Sketcher.Constraint("Coincident", 0, 1, 1, 1),
    Sketcher.Constraint("Coincident", 1, 2, 2, 1),
    Sketcher.Constraint("Coincident", 2, 2, 3, 1),
    Sketcher.Constraint("Coincident", 3, 2, 0, 2),
    Sketcher.Constraint("Coincident", 4, 2, 5, 2),
    Sketcher.Constraint("Coincident", 5, 1, 6, 1),
    Sketcher.Constraint("Tangent", 6, 2, 7, 2),
    Sketcher.Constraint("Tangent", 7, 1, 8, 1),
    Sketcher.Constraint("Coincident", 8, 2, 9, 2),
    Sketcher.Constraint("Coincident", 9, 1, 10, 1),
    Sketcher.Constraint("Coincident", 10, 2, 11, 1),
    Sketcher.Constraint("Coincident", 11, 2, 4, 1),
    Sketcher.Constraint("Coincident", 12, 1, 13, 1),
    Sketcher.Constraint("Coincident", 13, 2, 14, 1),
    Sketcher.Constraint("Coincident", 14, 2, 15, 1),
    Sketcher.Constraint("Coincident", 15, 2, 16, 2),
    Sketcher.Constraint("Coincident", 16, 1, 17, 1),
    Sketcher.Constraint("Tangent", 17, 2, 18, 2),
    Sketcher.Constraint("Tangent", 18, 1, 19, 1),
    Sketcher.Constraint("Coincident", 19, 2, 12, 2),
    Sketcher.Constraint("Horizontal", 10),
    Sketcher.Constraint("Horizontal", 15),
    Sketcher.Constraint("Coincident", 2, 3, 0, 3),
    Sketcher.Constraint("Coincident", 5, 3, 0, 3),
    Sketcher.Constraint("Coincident", 9, 3, 0, 3),
    Sketcher.Constraint("Coincident", 11, 3, 0, 3),
    Sketcher.Constraint("Coincident", 12, 3, 0, 3),
    Sketcher.Constraint("Coincident", 14, 3, 0, 3),
    Sketcher.Constraint("Coincident", 16, 3, 0, 3),
    Sketcher.Constraint("Equal", 0, 5),
    Sketcher.Constraint("Equal", 5, 9),
    Sketcher.Constraint("Equal", 2, 11),
    Sketcher.Constraint("Equal", 9, 12),
    Sketcher.Constraint("Equal", 11, 14),
    Sketcher.Constraint("Equal", 12, 16),
    Sketcher.Constraint("Equal", 7, 18),
    Sketcher.Constraint("Parallel", 1, 4),
    Sketcher.Constraint("Parallel", 6, 8),
    Sketcher.Constraint("Parallel", 3, 13),
    Sketcher.Constraint("Perpendicular", 8, 17),
    Sketcher.Constraint("Parallel", 17, 19),
    Sketcher.Constraint("Vertical", 7, 3, 18, 3),
    Sketcher.Constraint("Vertical", 1, 2, 2, 2),
    Sketcher.Constraint("Vertical", 0, 1, 3, 2),
    Sketcher.Constraint("Vertical", 4, 2, 12, 1),
    Sketcher.Constraint("Vertical", 10, 2, 14, 2),
    Sketcher.Constraint("Vertical", 8, 2, 16, 1),
    Sketcher.Constraint("Vertical", 7, 1, 17, 2),
    Sketcher.Constraint("Equal", 3, 4),
    Sketcher.Constraint("Equal", 6, 8),
    Sketcher.Constraint("Radius", 0, Q("30 mm")),
    Sketcher.Constraint("Radius", 2, Q("14.5 mm")),
    Sketcher.Constraint("Radius", 7, Q("4.5 mm")),
    Sketcher.Constraint("Angle", 1, Q("-60 deg")),
    Sketcher.Constraint("DistanceY", 14, 2, 10, 2, Q("14 mm")),
    Sketcher.Constraint("DistanceY", 0, 1, 4, 2, Q("7 mm")),
    Sketcher.Constraint("DistanceX", -1, 1, 0, 3, Q("128.5 mm")),
    Sketcher.Constraint("DistanceY", 0, 3, -1, 1, Q("19.5 mm")),
    Sketcher.Constraint("DistanceX", 5, 1, 7, 3, Q("7.311 mm")),
])
pocket3 = body.newObject("PartDesign::Pocket", "Pocket002")
pocket3.Profile = sketch5
pocket3.Length = 3.2
pocket3.Reversed = True

# Sketch on XY plane
sketch6 = body.newObject("Sketcher::SketchObject", "Sketch005")
sketch6.AttachmentSupport = (doc.getObject("XY_Plane"), [""])
sketch6.MapMode = "FlatFace"
sketch6.addGeometry([
    Part.LineSegment(V(181.5, 28.5, 0), V(186.5, 28.5, 0)),
    Part.LineSegment(V(186.5, 28.5, 0), V(186.5, 4.5, 0)),
    Part.LineSegment(V(186.5, 4.5, 0), V(181.5, 4.5, 0)),
    Part.LineSegment(V(181.5, 4.5, 0), V(181.5, 28.5, 0)),
], False)
sketch6.addConstraint([
    Sketcher.Constraint("Coincident", 0, 2, 1, 1),
    Sketcher.Constraint("Coincident", 1, 2, 2, 1),
    Sketcher.Constraint("Coincident", 2, 2, 3, 1),
    Sketcher.Constraint("Coincident", 3, 2, 0, 1),
    Sketcher.Constraint("Horizontal", 0),
    Sketcher.Constraint("Vertical", 1),
    Sketcher.Constraint("Horizontal", 2),
    Sketcher.Constraint("Vertical", 3),
    Sketcher.Constraint("DistanceX", 0, 1, 0, 2, Q("5 mm")),
    Sketcher.Constraint("DistanceY", 1, 2, 1, 1, Q("24 mm")),
    Sketcher.Constraint("DistanceX", -1, 1, 0, 2, Q("186.5 mm")),
    Sketcher.Constraint("DistanceY", -1, 1, 0, 2, Q("28.5 mm")),
])
pad3 = body.newObject("PartDesign::Pad", "Pad002")
pad3.Profile = sketch6
pad3.Length = 3

doc.recompute()
